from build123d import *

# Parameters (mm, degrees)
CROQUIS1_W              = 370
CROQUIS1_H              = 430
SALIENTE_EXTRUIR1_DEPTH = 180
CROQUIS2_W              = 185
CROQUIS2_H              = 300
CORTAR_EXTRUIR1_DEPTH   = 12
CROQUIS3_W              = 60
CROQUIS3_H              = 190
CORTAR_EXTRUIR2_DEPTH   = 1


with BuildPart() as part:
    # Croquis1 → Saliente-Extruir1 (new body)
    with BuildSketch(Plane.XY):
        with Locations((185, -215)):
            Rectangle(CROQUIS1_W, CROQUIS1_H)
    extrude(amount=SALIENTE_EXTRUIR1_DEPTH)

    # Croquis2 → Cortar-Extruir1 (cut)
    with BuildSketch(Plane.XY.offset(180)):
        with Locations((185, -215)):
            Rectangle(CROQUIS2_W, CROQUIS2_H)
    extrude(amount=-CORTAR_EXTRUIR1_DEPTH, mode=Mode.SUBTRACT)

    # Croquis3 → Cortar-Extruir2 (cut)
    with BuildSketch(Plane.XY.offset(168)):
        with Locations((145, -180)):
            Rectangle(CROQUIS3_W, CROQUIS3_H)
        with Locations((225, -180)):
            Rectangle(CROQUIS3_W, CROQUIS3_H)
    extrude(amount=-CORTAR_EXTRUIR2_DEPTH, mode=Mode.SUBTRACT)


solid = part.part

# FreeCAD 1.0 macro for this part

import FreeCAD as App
import Part
import Sketcher

doc = App.newDocument("Part")
body = doc.addObject("PartDesign::Body", "Body")

# Sketch on XY plane
sketch1 = body.newObject("Sketcher::SketchObject", "Sketch")
sketch1.AttachmentSupport = (doc.getObject("XY_Plane"), [""])
sketch1.MapMode = "FlatFace"
sketch1.addGeometry(Part.LineSegment(App.Vector(0, 0, 0), App.Vector(0, -430, 0)), False)
sketch1.addGeometry(Part.LineSegment(App.Vector(0, -430, 0), App.Vector(370, -430, 0)), False)
sketch1.addGeometry(Part.LineSegment(App.Vector(370, -430, 0), App.Vector(370, 0, 0)), False)
sketch1.addGeometry(Part.LineSegment(App.Vector(370, 0, 0), App.Vector(0, 0, 0)), False)
sketch1.addConstraint(Sketcher.Constraint("Coincident", 0, 2, 1, 1))
sketch1.addConstraint(Sketcher.Constraint("Coincident", 1, 2, 2, 1))
sketch1.addConstraint(Sketcher.Constraint("Coincident", 2, 2, 3, 1))
sketch1.addConstraint(Sketcher.Constraint("Coincident", 3, 2, 0, 1))
sketch1.addConstraint(Sketcher.Constraint("Vertical", 0))
sketch1.addConstraint(Sketcher.Constraint("Horizontal", 1))
sketch1.addConstraint(Sketcher.Constraint("Vertical", 2))
sketch1.addConstraint(Sketcher.Constraint("Horizontal", 3))
sketch1.addConstraint(Sketcher.Constraint("Coincident", 3, 2, -1, 1))
sketch1.addConstraint(Sketcher.Constraint("DistanceX", 1, 1, 1, 2, 370.0))
sketch1.addConstraint(Sketcher.Constraint("DistanceY", 0, 2, 0, 1, 430.0))
pad1 = body.newObject("PartDesign::Pad", "Pad")
pad1.Profile = sketch1
pad1.Length = 180

# Sketch on XY plane
sketch2 = body.newObject("Sketcher::SketchObject", "Sketch001")
sketch2.AttachmentSupport = (doc.getObject("XY_Plane"), [""])
sketch2.MapMode = "FlatFace"
sketch2.AttachmentOffset = App.Placement(App.Vector(0, 0, 180), App.Rotation())
sketch2.addGeometry(Part.LineSegment(App.Vector(92, -65, 0), App.Vector(92, -365, 0)), False)
sketch2.addGeometry(Part.LineSegment(App.Vector(92, -365, 0), App.Vector(278, -365, 0)), False)
sketch2.addGeometry(Part.LineSegment(App.Vector(278, -365, 0), App.Vector(278, -65, 0)), False)
sketch2.addGeometry(Part.LineSegment(App.Vector(278, -65, 0), App.Vector(92, -65, 0)), False)
sketch2.addConstraint(Sketcher.Constraint("Coincident", 0, 2, 1, 1))
sketch2.addConstraint(Sketcher.Constraint("Coincident", 1, 2, 2, 1))
sketch2.addConstraint(Sketcher.Constraint("Coincident", 2, 2, 3, 1))
sketch2.addConstraint(Sketcher.Constraint("Coincident", 3, 2, 0, 1))
sketch2.addConstraint(Sketcher.Constraint("Vertical", 0))
sketch2.addConstraint(Sketcher.Constraint("Horizontal", 1))
sketch2.addConstraint(Sketcher.Constraint("Vertical", 2))
sketch2.addConstraint(Sketcher.Constraint("Horizontal", 3))
sketch2.addConstraint(Sketcher.Constraint("DistanceX", 1, 1, 1, 2, 185.0))
sketch2.addConstraint(Sketcher.Constraint("DistanceY", 0, 2, 0, 1, 300.0))
sketch2.addConstraint(Sketcher.Constraint("DistanceY", 0, 2, -1, 1, 365.0))
sketch2.addConstraint(Sketcher.Constraint("DistanceX", -1, 1, 0, 2, 92.5))
pocket1 = body.newObject("PartDesign::Pocket", "Pocket")
pocket1.Profile = sketch2
pocket1.Length = 12

# Sketch on XY plane
sketch3 = body.newObject("Sketcher::SketchObject", "Sketch002")
sketch3.AttachmentSupport = (doc.getObject("XY_Plane"), [""])
sketch3.MapMode = "FlatFace"
sketch3.AttachmentOffset = App.Placement(App.Vector(0, 0, 168), App.Rotation())
sketch3.addGeometry(Part.LineSegment(App.Vector(115, -85, 0), App.Vector(115, -275, 0)), False)
sketch3.addGeometry(Part.LineSegment(App.Vector(115, -275, 0), App.Vector(175, -275, 0)), False)
sketch3.addGeometry(Part.LineSegment(App.Vector(175, -275, 0), App.Vector(175, -85, 0)), False)
sketch3.addGeometry(Part.LineSegment(App.Vector(175, -85, 0), App.Vector(115, -85, 0)), False)
sketch3.addGeometry(Part.LineSegment(App.Vector(195, -85, 0), App.Vector(195, -275, 0)), False)
sketch3.addGeometry(Part.LineSegment(App.Vector(195, -275, 0), App.Vector(255, -275, 0)), False)
sketch3.addGeometry(Part.LineSegment(App.Vector(255, -275, 0), App.Vector(255, -85, 0)), False)
sketch3.addGeometry(Part.LineSegment(App.Vector(255, -85, 0), App.Vector(195, -85, 0)), False)
sketch3.addConstraint(Sketcher.Constraint("Coincident", 0, 2, 1, 1))
sketch3.addConstraint(Sketcher.Constraint("Coincident", 1, 2, 2, 1))
sketch3.addConstraint(Sketcher.Constraint("Coincident", 2, 2, 3, 1))
sketch3.addConstraint(Sketcher.Constraint("Coincident", 3, 2, 0, 1))
sketch3.addConstraint(Sketcher.Constraint("Coincident", 4, 2, 5, 1))
sketch3.addConstraint(Sketcher.Constraint("Coincident", 5, 2, 6, 1))
sketch3.addConstraint(Sketcher.Constraint("Coincident", 6, 2, 7, 1))
sketch3.addConstraint(Sketcher.Constraint("Coincident", 7, 2, 4, 1))
sketch3.addConstraint(Sketcher.Constraint("Vertical", 0))
sketch3.addConstraint(Sketcher.Constraint("Horizontal", 1))
sketch3.addConstraint(Sketcher.Constraint("Vertical", 2))
sketch3.addConstraint(Sketcher.Constraint("Horizontal", 3))
sketch3.addConstraint(Sketcher.Constraint("Vertical", 4))
sketch3.addConstraint(Sketcher.Constraint("Horizontal", 5))
sketch3.addConstraint(Sketcher.Constraint("Vertical", 6))
sketch3.addConstraint(Sketcher.Constraint("Horizontal", 7))
sketch3.addConstraint(Sketcher.Constraint("Horizontal", 1, 2, 4, 2))
sketch3.addConstraint(Sketcher.Constraint("Horizontal", 3, 2, 6, 2))
sketch3.addConstraint(Sketcher.Constraint("Equal", 3, 5))
sketch3.addConstraint(Sketcher.Constraint("DistanceX", 1, 1, 1, 2, 60.0))
sketch3.addConstraint(Sketcher.Constraint("DistanceY", 0, 2, 0, 1, 190.0))
sketch3.addConstraint(Sketcher.Constraint("DistanceX", -1, 1, 0, 2, 115.0))
sketch3.addConstraint(Sketcher.Constraint("DistanceY", 0, 2, -1, 1, 275.0))
sketch3.addConstraint(Sketcher.Constraint("DistanceX", -1, 1, 4, 2, 195.0))
pocket2 = body.newObject("PartDesign::Pocket", "Pocket001")
pocket2.Profile = sketch3
pocket2.Length = 1

doc.recompute()
